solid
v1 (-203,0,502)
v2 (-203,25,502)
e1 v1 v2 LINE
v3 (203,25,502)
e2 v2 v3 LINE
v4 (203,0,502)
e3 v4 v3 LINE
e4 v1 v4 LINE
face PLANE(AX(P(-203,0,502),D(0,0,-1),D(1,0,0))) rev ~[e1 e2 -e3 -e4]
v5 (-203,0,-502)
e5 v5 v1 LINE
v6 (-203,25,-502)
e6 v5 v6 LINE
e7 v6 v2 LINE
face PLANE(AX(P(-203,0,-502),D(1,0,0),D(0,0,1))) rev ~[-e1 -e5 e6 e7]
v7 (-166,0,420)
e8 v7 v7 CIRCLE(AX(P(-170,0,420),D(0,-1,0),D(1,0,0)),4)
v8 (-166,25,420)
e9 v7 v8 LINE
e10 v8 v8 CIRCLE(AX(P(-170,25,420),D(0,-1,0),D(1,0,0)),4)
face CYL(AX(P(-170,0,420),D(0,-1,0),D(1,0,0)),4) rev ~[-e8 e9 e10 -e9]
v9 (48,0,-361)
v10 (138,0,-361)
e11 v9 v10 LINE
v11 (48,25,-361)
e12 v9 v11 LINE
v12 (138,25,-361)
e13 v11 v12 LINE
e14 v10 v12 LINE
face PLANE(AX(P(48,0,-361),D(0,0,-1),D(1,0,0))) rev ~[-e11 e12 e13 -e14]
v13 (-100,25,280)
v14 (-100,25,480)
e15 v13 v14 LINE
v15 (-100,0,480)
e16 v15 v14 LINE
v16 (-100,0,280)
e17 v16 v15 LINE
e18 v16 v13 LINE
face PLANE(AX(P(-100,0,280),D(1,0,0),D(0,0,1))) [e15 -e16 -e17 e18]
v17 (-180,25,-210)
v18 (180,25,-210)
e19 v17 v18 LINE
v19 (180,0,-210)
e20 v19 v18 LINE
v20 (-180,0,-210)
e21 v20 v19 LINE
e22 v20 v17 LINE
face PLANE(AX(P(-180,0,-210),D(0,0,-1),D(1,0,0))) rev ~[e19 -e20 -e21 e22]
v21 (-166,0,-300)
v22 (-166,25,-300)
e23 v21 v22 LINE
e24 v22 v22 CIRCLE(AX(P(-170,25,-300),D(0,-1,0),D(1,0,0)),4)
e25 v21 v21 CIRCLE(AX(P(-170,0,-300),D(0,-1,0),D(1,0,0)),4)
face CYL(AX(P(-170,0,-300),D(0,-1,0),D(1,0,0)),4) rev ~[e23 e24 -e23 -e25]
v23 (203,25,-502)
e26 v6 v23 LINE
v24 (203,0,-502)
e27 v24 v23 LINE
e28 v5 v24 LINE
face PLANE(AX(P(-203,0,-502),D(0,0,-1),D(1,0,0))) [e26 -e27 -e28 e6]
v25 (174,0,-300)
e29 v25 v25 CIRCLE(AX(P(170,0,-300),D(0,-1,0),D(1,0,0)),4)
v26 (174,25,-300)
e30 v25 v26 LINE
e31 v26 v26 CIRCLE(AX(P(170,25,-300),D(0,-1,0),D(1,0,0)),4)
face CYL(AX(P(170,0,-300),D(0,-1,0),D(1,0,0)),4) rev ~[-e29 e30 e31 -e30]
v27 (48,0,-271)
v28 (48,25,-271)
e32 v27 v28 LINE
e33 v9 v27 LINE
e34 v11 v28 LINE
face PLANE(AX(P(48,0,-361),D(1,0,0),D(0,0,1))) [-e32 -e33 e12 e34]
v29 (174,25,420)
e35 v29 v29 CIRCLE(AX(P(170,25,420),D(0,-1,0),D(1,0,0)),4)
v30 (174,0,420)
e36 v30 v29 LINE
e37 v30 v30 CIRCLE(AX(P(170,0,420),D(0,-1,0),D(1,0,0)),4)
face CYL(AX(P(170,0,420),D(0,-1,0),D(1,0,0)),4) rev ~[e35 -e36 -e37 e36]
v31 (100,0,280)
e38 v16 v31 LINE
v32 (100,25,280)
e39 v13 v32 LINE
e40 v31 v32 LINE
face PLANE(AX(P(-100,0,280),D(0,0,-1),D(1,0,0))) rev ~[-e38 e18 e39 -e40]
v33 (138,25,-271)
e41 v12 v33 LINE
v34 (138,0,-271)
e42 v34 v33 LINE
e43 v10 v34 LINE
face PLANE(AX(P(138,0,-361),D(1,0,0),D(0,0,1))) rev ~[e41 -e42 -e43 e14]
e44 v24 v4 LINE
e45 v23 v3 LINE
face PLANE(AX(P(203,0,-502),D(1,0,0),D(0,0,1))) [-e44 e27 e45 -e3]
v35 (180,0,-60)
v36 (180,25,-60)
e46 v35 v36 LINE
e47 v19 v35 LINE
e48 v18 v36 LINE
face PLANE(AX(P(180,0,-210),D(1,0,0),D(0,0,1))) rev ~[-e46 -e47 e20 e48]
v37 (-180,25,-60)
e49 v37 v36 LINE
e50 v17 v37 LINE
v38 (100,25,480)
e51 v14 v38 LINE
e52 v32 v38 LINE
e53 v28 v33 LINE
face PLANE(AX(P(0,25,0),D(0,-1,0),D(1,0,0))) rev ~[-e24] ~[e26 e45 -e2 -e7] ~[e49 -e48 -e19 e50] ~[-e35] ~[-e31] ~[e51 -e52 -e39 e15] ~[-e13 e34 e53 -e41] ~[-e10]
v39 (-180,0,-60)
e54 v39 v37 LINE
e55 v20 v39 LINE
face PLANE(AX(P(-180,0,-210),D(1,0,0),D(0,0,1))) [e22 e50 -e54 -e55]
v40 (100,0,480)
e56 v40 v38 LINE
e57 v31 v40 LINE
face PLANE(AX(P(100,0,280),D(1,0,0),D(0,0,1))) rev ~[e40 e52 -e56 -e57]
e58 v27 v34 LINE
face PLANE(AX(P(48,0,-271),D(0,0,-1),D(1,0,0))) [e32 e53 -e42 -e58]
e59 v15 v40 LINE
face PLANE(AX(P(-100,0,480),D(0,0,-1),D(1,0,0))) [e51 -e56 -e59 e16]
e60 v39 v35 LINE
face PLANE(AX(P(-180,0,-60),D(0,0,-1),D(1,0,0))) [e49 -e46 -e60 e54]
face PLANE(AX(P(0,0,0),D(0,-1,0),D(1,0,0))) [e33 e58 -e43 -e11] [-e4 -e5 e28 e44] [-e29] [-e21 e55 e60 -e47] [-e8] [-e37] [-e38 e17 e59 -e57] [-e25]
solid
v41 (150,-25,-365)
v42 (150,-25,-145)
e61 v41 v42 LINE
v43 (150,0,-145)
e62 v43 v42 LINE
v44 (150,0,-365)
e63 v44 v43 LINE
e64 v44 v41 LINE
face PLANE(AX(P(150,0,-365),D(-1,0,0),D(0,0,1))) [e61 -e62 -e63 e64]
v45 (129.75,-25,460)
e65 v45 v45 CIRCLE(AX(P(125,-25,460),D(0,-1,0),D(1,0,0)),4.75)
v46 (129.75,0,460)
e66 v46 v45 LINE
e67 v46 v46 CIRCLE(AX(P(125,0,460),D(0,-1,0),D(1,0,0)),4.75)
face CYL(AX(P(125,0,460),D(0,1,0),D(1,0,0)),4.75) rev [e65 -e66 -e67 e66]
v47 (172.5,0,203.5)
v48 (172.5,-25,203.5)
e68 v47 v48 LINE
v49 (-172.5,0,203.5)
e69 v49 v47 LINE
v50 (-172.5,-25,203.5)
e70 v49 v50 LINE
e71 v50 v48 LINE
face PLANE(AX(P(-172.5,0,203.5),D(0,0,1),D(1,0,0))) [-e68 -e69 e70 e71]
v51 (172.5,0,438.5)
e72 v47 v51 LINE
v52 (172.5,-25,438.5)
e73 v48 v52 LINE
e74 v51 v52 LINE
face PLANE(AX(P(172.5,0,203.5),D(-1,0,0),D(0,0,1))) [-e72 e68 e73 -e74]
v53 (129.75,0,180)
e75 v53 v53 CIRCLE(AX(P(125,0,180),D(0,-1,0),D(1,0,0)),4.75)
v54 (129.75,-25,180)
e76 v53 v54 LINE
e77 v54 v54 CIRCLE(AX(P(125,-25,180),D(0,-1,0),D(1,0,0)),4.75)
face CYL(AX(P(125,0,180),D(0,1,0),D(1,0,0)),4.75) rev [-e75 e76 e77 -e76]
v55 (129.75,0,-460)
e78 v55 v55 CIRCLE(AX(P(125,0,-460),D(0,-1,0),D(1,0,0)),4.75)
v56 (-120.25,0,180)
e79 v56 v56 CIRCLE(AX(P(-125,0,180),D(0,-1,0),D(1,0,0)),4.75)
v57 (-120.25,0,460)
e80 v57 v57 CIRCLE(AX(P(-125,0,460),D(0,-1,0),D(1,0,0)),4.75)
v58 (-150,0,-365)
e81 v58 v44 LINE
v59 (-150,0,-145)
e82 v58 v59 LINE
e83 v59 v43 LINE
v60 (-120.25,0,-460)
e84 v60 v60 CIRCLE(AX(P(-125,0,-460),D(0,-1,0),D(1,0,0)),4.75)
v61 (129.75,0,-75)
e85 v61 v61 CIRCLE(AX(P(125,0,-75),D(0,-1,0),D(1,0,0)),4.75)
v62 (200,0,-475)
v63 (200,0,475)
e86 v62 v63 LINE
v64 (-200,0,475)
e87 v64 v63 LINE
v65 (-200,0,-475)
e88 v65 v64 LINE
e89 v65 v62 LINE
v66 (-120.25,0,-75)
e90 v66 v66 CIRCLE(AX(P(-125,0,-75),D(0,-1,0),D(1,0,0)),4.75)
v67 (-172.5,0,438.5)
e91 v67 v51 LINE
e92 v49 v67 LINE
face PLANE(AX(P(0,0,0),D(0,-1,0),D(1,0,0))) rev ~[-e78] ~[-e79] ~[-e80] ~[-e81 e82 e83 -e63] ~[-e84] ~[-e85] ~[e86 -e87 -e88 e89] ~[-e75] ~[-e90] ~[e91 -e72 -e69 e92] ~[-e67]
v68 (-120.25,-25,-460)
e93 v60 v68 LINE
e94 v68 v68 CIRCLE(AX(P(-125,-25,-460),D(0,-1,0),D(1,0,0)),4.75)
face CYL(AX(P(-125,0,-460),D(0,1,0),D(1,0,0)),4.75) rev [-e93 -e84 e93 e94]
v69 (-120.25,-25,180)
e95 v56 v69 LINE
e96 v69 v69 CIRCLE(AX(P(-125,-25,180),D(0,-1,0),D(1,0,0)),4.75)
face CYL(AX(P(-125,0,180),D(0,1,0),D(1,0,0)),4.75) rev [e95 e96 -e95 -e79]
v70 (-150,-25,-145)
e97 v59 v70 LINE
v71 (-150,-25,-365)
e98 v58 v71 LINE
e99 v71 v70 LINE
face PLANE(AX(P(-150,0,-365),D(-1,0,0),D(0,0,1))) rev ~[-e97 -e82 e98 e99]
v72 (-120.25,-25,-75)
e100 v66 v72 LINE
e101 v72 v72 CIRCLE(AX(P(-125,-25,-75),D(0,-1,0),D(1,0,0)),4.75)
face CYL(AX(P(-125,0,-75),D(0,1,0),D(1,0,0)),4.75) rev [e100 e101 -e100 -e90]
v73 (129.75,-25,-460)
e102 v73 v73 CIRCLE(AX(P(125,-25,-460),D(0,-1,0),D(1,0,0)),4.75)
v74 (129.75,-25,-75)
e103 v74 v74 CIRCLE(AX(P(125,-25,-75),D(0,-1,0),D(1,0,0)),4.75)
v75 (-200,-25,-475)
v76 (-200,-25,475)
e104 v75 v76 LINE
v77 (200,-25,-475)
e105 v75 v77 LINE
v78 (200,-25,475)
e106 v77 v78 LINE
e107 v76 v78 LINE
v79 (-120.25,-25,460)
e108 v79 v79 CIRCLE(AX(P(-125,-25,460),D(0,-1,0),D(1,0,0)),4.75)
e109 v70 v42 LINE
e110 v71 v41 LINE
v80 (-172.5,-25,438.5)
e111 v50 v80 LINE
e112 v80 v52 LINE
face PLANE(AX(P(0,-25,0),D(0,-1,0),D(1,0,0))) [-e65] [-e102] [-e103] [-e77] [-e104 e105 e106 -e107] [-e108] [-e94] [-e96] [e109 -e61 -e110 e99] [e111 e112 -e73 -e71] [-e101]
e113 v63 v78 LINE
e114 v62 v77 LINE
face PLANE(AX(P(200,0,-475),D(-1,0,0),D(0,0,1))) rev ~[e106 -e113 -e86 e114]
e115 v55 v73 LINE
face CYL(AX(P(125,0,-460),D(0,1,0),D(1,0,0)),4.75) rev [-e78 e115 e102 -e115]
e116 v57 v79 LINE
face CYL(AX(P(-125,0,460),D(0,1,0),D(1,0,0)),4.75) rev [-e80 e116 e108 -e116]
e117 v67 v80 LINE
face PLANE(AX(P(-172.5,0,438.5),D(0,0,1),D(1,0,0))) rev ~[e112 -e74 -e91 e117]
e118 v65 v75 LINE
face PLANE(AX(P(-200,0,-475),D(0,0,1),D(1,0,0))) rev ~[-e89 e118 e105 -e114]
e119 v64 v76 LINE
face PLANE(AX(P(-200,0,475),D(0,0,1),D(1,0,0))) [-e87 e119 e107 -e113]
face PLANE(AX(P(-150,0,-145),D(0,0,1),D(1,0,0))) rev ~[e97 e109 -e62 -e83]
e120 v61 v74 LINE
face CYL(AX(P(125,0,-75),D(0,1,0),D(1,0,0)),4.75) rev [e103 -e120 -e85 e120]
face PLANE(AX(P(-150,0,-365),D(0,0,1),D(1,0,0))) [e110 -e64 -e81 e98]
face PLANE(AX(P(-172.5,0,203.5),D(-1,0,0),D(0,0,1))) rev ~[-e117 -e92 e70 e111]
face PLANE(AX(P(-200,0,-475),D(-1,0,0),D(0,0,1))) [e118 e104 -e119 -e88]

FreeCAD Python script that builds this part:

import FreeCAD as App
import Part
import Sketcher
from FreeCAD import Vector

doc = App.newDocument("Part")
body = doc.addObject("PartDesign::Body", "Body")

# Sketch on XZ plane
sketch1 = body.newObject("Sketcher::SketchObject", "Sketch")
sketch1.AttachmentSupport = (doc.getObject("XZ_Plane"), [""])
sketch1.MapMode = "FlatFace"
sketch1.addGeometry([
    Part.LineSegment(Vector(-203, 502, 0), Vector(-203, -502, 0)),  # 0
    Part.LineSegment(Vector(-203, -502, 0), Vector(203, -502, 0)),  # 1
    Part.LineSegment(Vector(203, -502, 0), Vector(203, 502, 0)),  # 2
    Part.LineSegment(Vector(203, 502, 0), Vector(-203, 502, 0)),  # 3
    Part.Circle(Vector(-170, -300, 0), Vector(0, 0, 1), 4),  # 4
    Part.LineSegment(Vector(138, -361, 0), Vector(48, -361, 0)),  # 5
    Part.LineSegment(Vector(48, -361, 0), Vector(48, -271, 0)),  # 6
    Part.LineSegment(Vector(48, -271, 0), Vector(138, -271, 0)),  # 7
    Part.LineSegment(Vector(138, -271, 0), Vector(138, -361, 0)),  # 8
    Part.Circle(Vector(170, -300, 0), Vector(0, 0, 1), 4),  # 9
    Part.LineSegment(Vector(180, -210, 0), Vector(-180, -210, 0)),  # 10
    Part.LineSegment(Vector(-180, -210, 0), Vector(-180, -60, 0)),  # 11
    Part.LineSegment(Vector(-180, -60, 0), Vector(180, -60, 0)),  # 12
    Part.LineSegment(Vector(180, -60, 0), Vector(180, -210, 0)),  # 13
    Part.Circle(Vector(-170, 420, 0), Vector(0, 0, 1), 4),  # 14
    Part.LineSegment(Vector(100, 280, 0), Vector(-100, 280, 0)),  # 15
    Part.LineSegment(Vector(-100, 280, 0), Vector(-100, 480, 0)),  # 16
    Part.LineSegment(Vector(-100, 480, 0), Vector(100, 480, 0)),  # 17
    Part.LineSegment(Vector(100, 480, 0), Vector(100, 280, 0)),  # 18
    Part.Circle(Vector(170, 420, 0), Vector(0, 0, 1), 4),  # 19
], False)
sketch1.addConstraint([
    Sketcher.Constraint("Coincident", 0, 2, 1, 1),
    Sketcher.Constraint("Coincident", 1, 2, 2, 1),
    Sketcher.Constraint("Coincident", 2, 2, 3, 1),
    Sketcher.Constraint("Coincident", 3, 2, 0, 1),
    Sketcher.Constraint("Coincident", 5, 2, 6, 1),
    Sketcher.Constraint("Coincident", 6, 2, 7, 1),
    Sketcher.Constraint("Coincident", 7, 2, 8, 1),
    Sketcher.Constraint("Coincident", 8, 2, 5, 1),
    Sketcher.Constraint("Coincident", 10, 2, 11, 1),
    Sketcher.Constraint("Coincident", 11, 2, 12, 1),
    Sketcher.Constraint("Coincident", 12, 2, 13, 1),
    Sketcher.Constraint("Coincident", 13, 2, 10, 1),
    Sketcher.Constraint("Coincident", 15, 2, 16, 1),
    Sketcher.Constraint("Coincident", 16, 2, 17, 1),
    Sketcher.Constraint("Coincident", 17, 2, 18, 1),
    Sketcher.Constraint("Coincident", 18, 2, 15, 1),
    Sketcher.Constraint("Vertical", 0),
    Sketcher.Constraint("Horizontal", 1),
    Sketcher.Constraint("Vertical", 2),
    Sketcher.Constraint("Horizontal", 3),
    Sketcher.Constraint("Horizontal", 5),
    Sketcher.Constraint("Vertical", 6),
    Sketcher.Constraint("Horizontal", 7),
    Sketcher.Constraint("Vertical", 8),
    Sketcher.Constraint("Horizontal", 10),
    Sketcher.Constraint("Vertical", 11),
    Sketcher.Constraint("Horizontal", 12),
    Sketcher.Constraint("Vertical", 13),
    Sketcher.Constraint("Horizontal", 15),
    Sketcher.Constraint("Vertical", 16),
    Sketcher.Constraint("Horizontal", 17),
    Sketcher.Constraint("Vertical", 18),
    Sketcher.Constraint("Equal", 4, 9),
    Sketcher.Constraint("Equal", 9, 14),
    Sketcher.Constraint("Equal", 14, 19),
    Sketcher.Constraint("Symmetric", 0, 2, 2, 2, -1, 1),
    Sketcher.Constraint("Symmetric", 4, 3, 9, 3, -2),
    Sketcher.Constraint("Symmetric", 14, 3, 19, 3, -2),
    Sketcher.Constraint("Vertical", 4, 3, 14, 3),
    Sketcher.Constraint("Equal", 7, 6),
    Sketcher.Constraint("Equal", 17, 16),
    Sketcher.Constraint("Diameter", 4, 8.0),
    Sketcher.Constraint("DistanceX", 1, 1, 1, 2, 406.0),
    Sketcher.Constraint("DistanceX", 5, 2, 5, 1, 90.0),
    Sketcher.Constraint("DistanceX", 10, 2, 10, 1, 360.0),
    Sketcher.Constraint("DistanceX", 15, 2, 15, 1, 200.0),
    Sketcher.Constraint("DistanceY", 0, 2, 0, 1, 1004.0),
    Sketcher.Constraint("DistanceY", 11, 1, 11, 2, 150.0),
    Sketcher.Constraint("DistanceX", 4, 3, -1, 1, 170.0),
    Sketcher.Constraint("DistanceY", 4, 3, -1, 1, 300.0),
    Sketcher.Constraint("DistanceY", -1, 1, 14, 3, 420.0),
    Sketcher.Constraint("DistanceX", -1, 1, 5, 2, 48.0),
    Sketcher.Constraint("DistanceY", 5, 2, -1, 1, 361.0),
    Sketcher.Constraint("DistanceX", 10, 2, -1, 1, 180.0),
    Sketcher.Constraint("DistanceY", 10, 2, -1, 1, 210.0),
    Sketcher.Constraint("DistanceX", 15, 2, -1, 1, 100.0),
    Sketcher.Constraint("DistanceY", -1, 1, 15, 2, 280.0),
])
pad1 = body.newObject("PartDesign::Pad", "Pad")
pad1.Profile = sketch1
pad1.Length = 25
pad1.Reversed = True
body2 = doc.addObject("PartDesign::Body", "Body001")

# Sketch on XZ plane
sketch2 = body2.newObject("Sketcher::SketchObject", "Sketch001")
sketch2.AttachmentSupport = (doc.getObject("XZ_Plane001"), [""])
sketch2.MapMode = "FlatFace"
sketch2.addGeometry([
    Part.LineSegment(Vector(-200, 475, 0), Vector(-200, -475, 0)),  # 0
    Part.LineSegment(Vector(-200, -475, 0), Vector(200, -475, 0)),  # 1
    Part.LineSegment(Vector(200, -475, 0), Vector(200, 475, 0)),  # 2
    Part.LineSegment(Vector(200, 475, 0), Vector(-200, 475, 0)),  # 3
    Part.Circle(Vector(-125, -460, 0), Vector(0, 0, 1), 4.75),  # 4
    Part.Circle(Vector(-125, -75, 0), Vector(0, 0, 1), 4.75),  # 5
    Part.LineSegment(Vector(150, -365, 0), Vector(-150, -365, 0)),  # 6
    Part.LineSegment(Vector(-150, -365, 0), Vector(-150, -145, 0)),  # 7
    Part.LineSegment(Vector(-150, -145, 0), Vector(150, -145, 0)),  # 8
    Part.LineSegment(Vector(150, -145, 0), Vector(150, -365, 0)),  # 9
    Part.Circle(Vector(125, -460, 0), Vector(0, 0, 1), 4.75),  # 10
    Part.Circle(Vector(125, -75, 0), Vector(0, 0, 1), 4.75),  # 11
    Part.Circle(Vector(-125, 180, 0), Vector(0, 0, 1), 4.75),  # 12
    Part.Circle(Vector(-125, 460, 0), Vector(0, 0, 1), 4.75),  # 13
    Part.Circle(Vector(125, 180, 0), Vector(0, 0, 1), 4.75),  # 14
    Part.LineSegment(Vector(172.5, 203.5, 0), Vector(-172.5, 203.5, 0)),  # 15
    Part.LineSegment(Vector(-172.5, 203.5, 0), Vector(-172.5, 438.5, 0)),  # 16
    Part.LineSegment(Vector(-172.5, 438.5, 0), Vector(172.5, 438.5, 0)),  # 17
    Part.LineSegment(Vector(172.5, 438.5, 0), Vector(172.5, 203.5, 0)),  # 18
    Part.Circle(Vector(125, 460, 0), Vector(0, 0, 1), 4.75),  # 19
], False)
sketch2.addConstraint([
    Sketcher.Constraint("Coincident", 0, 2, 1, 1),
    Sketcher.Constraint("Coincident", 1, 2, 2, 1),
    Sketcher.Constraint("Coincident", 2, 2, 3, 1),
    Sketcher.Constraint("Coincident", 3, 2, 0, 1),
    Sketcher.Constraint("Coincident", 6, 2, 7, 1),
    Sketcher.Constraint("Coincident", 7, 2, 8, 1),
    Sketcher.Constraint("Coincident", 8, 2, 9, 1),
    Sketcher.Constraint("Coincident", 9, 2, 6, 1),
    Sketcher.Constraint("Coincident", 15, 2, 16, 1),
    Sketcher.Constraint("Coincident", 16, 2, 17, 1),
    Sketcher.Constraint("Coincident", 17, 2, 18, 1),
    Sketcher.Constraint("Coincident", 18, 2, 15, 1),
    Sketcher.Constraint("Vertical", 0),
    Sketcher.Constraint("Horizontal", 1),
    Sketcher.Constraint("Vertical", 2),
    Sketcher.Constraint("Horizontal", 3),
    Sketcher.Constraint("Horizontal", 6),
    Sketcher.Constraint("Vertical", 7),
    Sketcher.Constraint("Horizontal", 8),
    Sketcher.Constraint("Vertical", 9),
    Sketcher.Constraint("Horizontal", 15),
    Sketcher.Constraint("Vertical", 16),
    Sketcher.Constraint("Horizontal", 17),
    Sketcher.Constraint("Vertical", 18),
    Sketcher.Constraint("Equal", 4, 5),
    Sketcher.Constraint("Equal", 5, 10),
    Sketcher.Constraint("Equal", 10, 11),
    Sketcher.Constraint("Equal", 11, 12),
    Sketcher.Constraint("Equal", 12, 13),
    Sketcher.Constraint("Equal", 13, 14),
    Sketcher.Constraint("Equal", 14, 19),
    Sketcher.Constraint("Symmetric", 10, 3, 13, 3, -1, 1),
    Sketcher.Constraint("Symmetric", 4, 3, 19, 3, -1, 1),
    Sketcher.Constraint("Symmetric", 0, 2, 2, 2, -1, 1),
    Sketcher.Constraint("Symmetric", 4, 3, 10, 3, -2),
    Sketcher.Constraint("Symmetric", 5, 3, 11, 3, -2),
    Sketcher.Constraint("Symmetric", 12, 3, 14, 3, -2),
    Sketcher.Constraint("Vertical", 4, 3, 5, 3),
    Sketcher.Constraint("Vertical", 5, 3, 12, 3),
    Sketcher.Constraint("Diameter", 4, 9.5),
    Sketcher.Constraint("DistanceX", 1, 1, 1, 2, 400.0),
    Sketcher.Constraint("DistanceX", 6, 2, 6, 1, 300.0),
    Sketcher.Constraint("DistanceX", 15, 2, 15, 1, 345.0),
    Sketcher.Constraint("DistanceY", 0, 2, 0, 1, 950.0),
    Sketcher.Constraint("DistanceY", 7, 1, 7, 2, 220.0),
    Sketcher.Constraint("DistanceY", 16, 1, 16, 2, 235.0),
    Sketcher.Constraint("DistanceX", 4, 3, -1, 1, 125.0),
    Sketcher.Constraint("DistanceY", 4, 3, -1, 1, 460.0),
    Sketcher.Constraint("DistanceY", 5, 3, -1, 1, 75.0),
    Sketcher.Constraint("DistanceY", -1, 1, 12, 3, 180.0),
    Sketcher.Constraint("DistanceX", 6, 2, -1, 1, 150.0),
    Sketcher.Constraint("DistanceY", 6, 2, -1, 1, 365.0),
    Sketcher.Constraint("DistanceX", 15, 2, -1, 1, 172.5),
    Sketcher.Constraint("DistanceY", -1, 1, 15, 2, 203.5),
])
pad2 = body2.newObject("PartDesign::Pad", "Pad001")
pad2.Profile = sketch2
pad2.Length = 25

doc.recompute()
